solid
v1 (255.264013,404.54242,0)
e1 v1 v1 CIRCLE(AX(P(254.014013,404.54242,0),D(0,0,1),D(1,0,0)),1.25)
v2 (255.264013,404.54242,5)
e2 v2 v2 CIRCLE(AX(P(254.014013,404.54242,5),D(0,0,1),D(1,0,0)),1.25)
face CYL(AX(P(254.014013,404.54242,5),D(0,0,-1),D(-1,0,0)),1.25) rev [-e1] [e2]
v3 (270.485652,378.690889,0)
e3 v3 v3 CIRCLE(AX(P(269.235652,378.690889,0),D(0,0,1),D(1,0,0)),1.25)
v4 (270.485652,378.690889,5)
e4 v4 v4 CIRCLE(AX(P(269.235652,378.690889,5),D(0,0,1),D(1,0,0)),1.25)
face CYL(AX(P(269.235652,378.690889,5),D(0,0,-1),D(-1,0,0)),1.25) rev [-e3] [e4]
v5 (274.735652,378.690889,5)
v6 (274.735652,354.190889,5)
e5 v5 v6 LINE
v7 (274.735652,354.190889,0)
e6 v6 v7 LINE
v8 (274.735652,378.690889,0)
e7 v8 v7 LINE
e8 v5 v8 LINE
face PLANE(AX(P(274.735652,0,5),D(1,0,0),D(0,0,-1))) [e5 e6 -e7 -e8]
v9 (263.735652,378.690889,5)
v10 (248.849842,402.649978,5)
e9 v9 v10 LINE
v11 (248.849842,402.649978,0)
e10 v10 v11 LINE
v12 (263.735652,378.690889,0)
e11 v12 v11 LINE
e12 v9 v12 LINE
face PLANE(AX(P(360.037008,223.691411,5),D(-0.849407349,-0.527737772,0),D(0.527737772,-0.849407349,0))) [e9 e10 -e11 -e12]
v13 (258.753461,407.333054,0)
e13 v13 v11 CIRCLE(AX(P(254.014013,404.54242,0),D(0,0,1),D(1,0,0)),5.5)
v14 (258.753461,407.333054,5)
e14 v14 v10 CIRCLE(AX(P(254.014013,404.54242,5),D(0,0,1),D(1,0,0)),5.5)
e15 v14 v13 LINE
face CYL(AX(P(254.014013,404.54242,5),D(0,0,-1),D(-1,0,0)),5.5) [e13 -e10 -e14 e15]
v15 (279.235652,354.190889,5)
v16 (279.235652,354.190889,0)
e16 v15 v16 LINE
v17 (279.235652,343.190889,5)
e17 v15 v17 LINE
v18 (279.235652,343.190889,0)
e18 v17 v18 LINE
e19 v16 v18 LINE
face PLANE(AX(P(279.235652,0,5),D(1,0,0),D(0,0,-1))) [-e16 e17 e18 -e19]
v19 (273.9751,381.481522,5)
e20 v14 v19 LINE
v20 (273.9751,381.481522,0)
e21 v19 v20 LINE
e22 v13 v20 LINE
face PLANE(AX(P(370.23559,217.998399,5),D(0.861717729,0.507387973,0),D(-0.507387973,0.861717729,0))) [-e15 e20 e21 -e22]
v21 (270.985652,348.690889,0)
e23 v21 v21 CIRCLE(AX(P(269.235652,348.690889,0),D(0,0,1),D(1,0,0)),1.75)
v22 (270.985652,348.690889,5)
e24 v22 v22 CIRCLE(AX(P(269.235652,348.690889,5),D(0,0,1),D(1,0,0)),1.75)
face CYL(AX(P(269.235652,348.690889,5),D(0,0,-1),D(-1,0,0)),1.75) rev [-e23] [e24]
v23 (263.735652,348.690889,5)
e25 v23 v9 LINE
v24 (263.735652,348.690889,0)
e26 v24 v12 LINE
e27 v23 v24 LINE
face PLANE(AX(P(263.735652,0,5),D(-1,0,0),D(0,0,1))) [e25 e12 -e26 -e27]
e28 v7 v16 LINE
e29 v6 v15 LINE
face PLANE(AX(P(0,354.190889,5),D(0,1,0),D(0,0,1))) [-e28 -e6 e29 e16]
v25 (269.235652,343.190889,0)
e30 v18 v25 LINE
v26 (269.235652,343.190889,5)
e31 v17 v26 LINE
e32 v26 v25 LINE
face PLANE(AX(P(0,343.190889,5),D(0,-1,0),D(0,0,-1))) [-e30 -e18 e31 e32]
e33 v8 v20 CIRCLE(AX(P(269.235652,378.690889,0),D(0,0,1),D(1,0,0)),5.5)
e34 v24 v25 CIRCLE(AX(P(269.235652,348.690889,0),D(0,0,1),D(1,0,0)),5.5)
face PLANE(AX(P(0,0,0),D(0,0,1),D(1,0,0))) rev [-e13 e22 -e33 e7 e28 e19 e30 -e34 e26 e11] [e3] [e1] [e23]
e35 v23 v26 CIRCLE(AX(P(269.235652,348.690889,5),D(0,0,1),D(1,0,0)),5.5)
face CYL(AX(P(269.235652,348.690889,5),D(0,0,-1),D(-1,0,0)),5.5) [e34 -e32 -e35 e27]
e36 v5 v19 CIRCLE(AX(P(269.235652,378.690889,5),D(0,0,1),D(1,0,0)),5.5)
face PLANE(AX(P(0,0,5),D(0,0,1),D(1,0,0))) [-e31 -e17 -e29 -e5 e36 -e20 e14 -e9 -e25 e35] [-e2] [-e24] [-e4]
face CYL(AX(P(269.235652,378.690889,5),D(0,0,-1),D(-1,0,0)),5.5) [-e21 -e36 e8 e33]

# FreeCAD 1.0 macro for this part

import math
import FreeCAD as App
import Part
import Sketcher

V = App.Vector
Q = App.Units.Quantity

doc = App.newDocument("Part")
body = doc.addObject("PartDesign::Body", "Body")

# Sketch on XY plane
sketch1 = body.newObject("Sketcher::SketchObject", "Sketch")
sketch1.AttachmentSupport = (doc.getObject("XY_Plane"), [""])
sketch1.MapMode = "FlatFace"
sketch1.addGeometry(Part.LineSegment(V(274.7, 354.2, 0), V(274.7, 378.7, 0)), False)
sketch1.addGeometry(Part.ArcOfCircle(Part.Circle(V(269.2, 378.7, 0), V(0, 0, 1), 5.5), math.radians(0), math.radians(30)), False)
sketch1.addGeometry(Part.LineSegment(V(274, 381.5, 0), V(258.8, 407.3, 0)), False)
sketch1.addGeometry(Part.ArcOfCircle(Part.Circle(V(254, 404.5, 0), V(0, 0, 1), 5.5), math.radians(30), math.radians(200)), False)
sketch1.addGeometry(Part.LineSegment(V(248.8, 402.6, 0), V(250, 400.8, 0)), False)
sketch1.addGeometry(Part.LineSegment(V(250, 400.8, 0), V(263.7, 378.7, 0)), False)
sketch1.addGeometry(Part.LineSegment(V(263.7, 378.7, 0), V(263.7, 348.7, 0)), False)
sketch1.addGeometry(Part.ArcOfCircle(Part.Circle(V(269.2, 348.7, 0), V(0, 0, 1), 5.5), math.radians(180), math.radians(270)), False)
sketch1.addGeometry(Part.LineSegment(V(269.2, 343.2, 0), V(279.2, 343.2, 0)), False)
sketch1.addGeometry(Part.LineSegment(V(279.2, 343.2, 0), V(279.2, 354.2, 0)), False)
sketch1.addGeometry(Part.LineSegment(V(279.2, 354.2, 0), V(274.7, 354.2, 0)), False)
sketch1.addGeometry(Part.Circle(V(269.2, 348.7, 0), V(0, 0, 1), 1.8), False)
sketch1.addGeometry(Part.Circle(V(254, 404.5, 0), V(0, 0, 1), 1.2), False)
sketch1.addGeometry(Part.Circle(V(269.2, 378.7, 0), V(0, 0, 1), 1.2), False)
sketch1.addConstraint(Sketcher.Constraint("Tangent", 0, 2, 1, 1))
sketch1.addConstraint(Sketcher.Constraint("Tangent", 1, 2, 2, 1))
sketch1.addConstraint(Sketcher.Constraint("Tangent", 2, 2, 3, 1))
sketch1.addConstraint(Sketcher.Constraint("Coincident", 3, 2, 4, 1))
sketch1.addConstraint(Sketcher.Constraint("Coincident", 4, 2, 5, 1))
sketch1.addConstraint(Sketcher.Constraint("Coincident", 5, 2, 6, 1))
sketch1.addConstraint(Sketcher.Constraint("Tangent", 6, 2, 7, 1))
sketch1.addConstraint(Sketcher.Constraint("Tangent", 7, 2, 8, 1))
sketch1.addConstraint(Sketcher.Constraint("Coincident", 8, 2, 9, 1))
sketch1.addConstraint(Sketcher.Constraint("Coincident", 9, 2, 10, 1))
sketch1.addConstraint(Sketcher.Constraint("Coincident", 10, 2, 0, 1))
sketch1.addConstraint(Sketcher.Constraint("Vertical", 0))
sketch1.addConstraint(Sketcher.Constraint("Vertical", 6))
sketch1.addConstraint(Sketcher.Constraint("Horizontal", 8))
sketch1.addConstraint(Sketcher.Constraint("Vertical", 9))
sketch1.addConstraint(Sketcher.Constraint("Horizontal", 10))
sketch1.addConstraint(Sketcher.Constraint("Coincident", 11, 3, 7, 3))
sketch1.addConstraint(Sketcher.Constraint("Coincident", 12, 3, 3, 3))
sketch1.addConstraint(Sketcher.Constraint("Coincident", 13, 3, 1, 3))
sketch1.addConstraint(Sketcher.Constraint("Equal", 1, 3))
sketch1.addConstraint(Sketcher.Constraint("Equal", 3, 7))
sketch1.addConstraint(Sketcher.Constraint("Equal", 12, 13))
sketch1.addConstraint(Sketcher.Constraint("Parallel", 4, 5))
sketch1.addConstraint(Sketcher.Constraint("Horizontal", 0, 2, 5, 2))
sketch1.addConstraint(Sketcher.Constraint("Vertical", 1, 3, 7, 3))
sketch1.addConstraint(Sketcher.Constraint("Diameter", 11, 3.5))
sketch1.addConstraint(Sketcher.Constraint("Diameter", 12, 2.5))
sketch1.addConstraint(Sketcher.Constraint("Radius", 1, 5.5))
sketch1.addConstraint(Sketcher.Constraint("DistanceX", 8, 1, 8, 2, 10.0))
sketch1.addConstraint(Sketcher.Constraint("DistanceY", 6, 2, 6, 1, 30.0))
sketch1.addConstraint(Sketcher.Constraint("DistanceY", 9, 1, 9, 2, 11.0))
sketch1.addConstraint(Sketcher.Constraint("Distance", 2, 30.0))
sketch1.addConstraint(Sketcher.Constraint("Angle", 2, Q("120.49 deg")))
sketch1.addConstraint(Sketcher.Constraint("DistanceX", -1, 1, 1, 2, 273.9751))
sketch1.addConstraint(Sketcher.Constraint("DistanceY", -1, 1, 1, 3, 378.690889))
sketch1.addConstraint(Sketcher.Constraint("DistanceY", -1, 1, 3, 2, 402.649978))
sketch1.addConstraint(Sketcher.Constraint("DistanceX", -1, 1, 4, 2, 250.02973))
pad1 = body.newObject("PartDesign::Pad", "Pad")
pad1.Profile = sketch1
pad1.Length = 5

doc.recompute()
